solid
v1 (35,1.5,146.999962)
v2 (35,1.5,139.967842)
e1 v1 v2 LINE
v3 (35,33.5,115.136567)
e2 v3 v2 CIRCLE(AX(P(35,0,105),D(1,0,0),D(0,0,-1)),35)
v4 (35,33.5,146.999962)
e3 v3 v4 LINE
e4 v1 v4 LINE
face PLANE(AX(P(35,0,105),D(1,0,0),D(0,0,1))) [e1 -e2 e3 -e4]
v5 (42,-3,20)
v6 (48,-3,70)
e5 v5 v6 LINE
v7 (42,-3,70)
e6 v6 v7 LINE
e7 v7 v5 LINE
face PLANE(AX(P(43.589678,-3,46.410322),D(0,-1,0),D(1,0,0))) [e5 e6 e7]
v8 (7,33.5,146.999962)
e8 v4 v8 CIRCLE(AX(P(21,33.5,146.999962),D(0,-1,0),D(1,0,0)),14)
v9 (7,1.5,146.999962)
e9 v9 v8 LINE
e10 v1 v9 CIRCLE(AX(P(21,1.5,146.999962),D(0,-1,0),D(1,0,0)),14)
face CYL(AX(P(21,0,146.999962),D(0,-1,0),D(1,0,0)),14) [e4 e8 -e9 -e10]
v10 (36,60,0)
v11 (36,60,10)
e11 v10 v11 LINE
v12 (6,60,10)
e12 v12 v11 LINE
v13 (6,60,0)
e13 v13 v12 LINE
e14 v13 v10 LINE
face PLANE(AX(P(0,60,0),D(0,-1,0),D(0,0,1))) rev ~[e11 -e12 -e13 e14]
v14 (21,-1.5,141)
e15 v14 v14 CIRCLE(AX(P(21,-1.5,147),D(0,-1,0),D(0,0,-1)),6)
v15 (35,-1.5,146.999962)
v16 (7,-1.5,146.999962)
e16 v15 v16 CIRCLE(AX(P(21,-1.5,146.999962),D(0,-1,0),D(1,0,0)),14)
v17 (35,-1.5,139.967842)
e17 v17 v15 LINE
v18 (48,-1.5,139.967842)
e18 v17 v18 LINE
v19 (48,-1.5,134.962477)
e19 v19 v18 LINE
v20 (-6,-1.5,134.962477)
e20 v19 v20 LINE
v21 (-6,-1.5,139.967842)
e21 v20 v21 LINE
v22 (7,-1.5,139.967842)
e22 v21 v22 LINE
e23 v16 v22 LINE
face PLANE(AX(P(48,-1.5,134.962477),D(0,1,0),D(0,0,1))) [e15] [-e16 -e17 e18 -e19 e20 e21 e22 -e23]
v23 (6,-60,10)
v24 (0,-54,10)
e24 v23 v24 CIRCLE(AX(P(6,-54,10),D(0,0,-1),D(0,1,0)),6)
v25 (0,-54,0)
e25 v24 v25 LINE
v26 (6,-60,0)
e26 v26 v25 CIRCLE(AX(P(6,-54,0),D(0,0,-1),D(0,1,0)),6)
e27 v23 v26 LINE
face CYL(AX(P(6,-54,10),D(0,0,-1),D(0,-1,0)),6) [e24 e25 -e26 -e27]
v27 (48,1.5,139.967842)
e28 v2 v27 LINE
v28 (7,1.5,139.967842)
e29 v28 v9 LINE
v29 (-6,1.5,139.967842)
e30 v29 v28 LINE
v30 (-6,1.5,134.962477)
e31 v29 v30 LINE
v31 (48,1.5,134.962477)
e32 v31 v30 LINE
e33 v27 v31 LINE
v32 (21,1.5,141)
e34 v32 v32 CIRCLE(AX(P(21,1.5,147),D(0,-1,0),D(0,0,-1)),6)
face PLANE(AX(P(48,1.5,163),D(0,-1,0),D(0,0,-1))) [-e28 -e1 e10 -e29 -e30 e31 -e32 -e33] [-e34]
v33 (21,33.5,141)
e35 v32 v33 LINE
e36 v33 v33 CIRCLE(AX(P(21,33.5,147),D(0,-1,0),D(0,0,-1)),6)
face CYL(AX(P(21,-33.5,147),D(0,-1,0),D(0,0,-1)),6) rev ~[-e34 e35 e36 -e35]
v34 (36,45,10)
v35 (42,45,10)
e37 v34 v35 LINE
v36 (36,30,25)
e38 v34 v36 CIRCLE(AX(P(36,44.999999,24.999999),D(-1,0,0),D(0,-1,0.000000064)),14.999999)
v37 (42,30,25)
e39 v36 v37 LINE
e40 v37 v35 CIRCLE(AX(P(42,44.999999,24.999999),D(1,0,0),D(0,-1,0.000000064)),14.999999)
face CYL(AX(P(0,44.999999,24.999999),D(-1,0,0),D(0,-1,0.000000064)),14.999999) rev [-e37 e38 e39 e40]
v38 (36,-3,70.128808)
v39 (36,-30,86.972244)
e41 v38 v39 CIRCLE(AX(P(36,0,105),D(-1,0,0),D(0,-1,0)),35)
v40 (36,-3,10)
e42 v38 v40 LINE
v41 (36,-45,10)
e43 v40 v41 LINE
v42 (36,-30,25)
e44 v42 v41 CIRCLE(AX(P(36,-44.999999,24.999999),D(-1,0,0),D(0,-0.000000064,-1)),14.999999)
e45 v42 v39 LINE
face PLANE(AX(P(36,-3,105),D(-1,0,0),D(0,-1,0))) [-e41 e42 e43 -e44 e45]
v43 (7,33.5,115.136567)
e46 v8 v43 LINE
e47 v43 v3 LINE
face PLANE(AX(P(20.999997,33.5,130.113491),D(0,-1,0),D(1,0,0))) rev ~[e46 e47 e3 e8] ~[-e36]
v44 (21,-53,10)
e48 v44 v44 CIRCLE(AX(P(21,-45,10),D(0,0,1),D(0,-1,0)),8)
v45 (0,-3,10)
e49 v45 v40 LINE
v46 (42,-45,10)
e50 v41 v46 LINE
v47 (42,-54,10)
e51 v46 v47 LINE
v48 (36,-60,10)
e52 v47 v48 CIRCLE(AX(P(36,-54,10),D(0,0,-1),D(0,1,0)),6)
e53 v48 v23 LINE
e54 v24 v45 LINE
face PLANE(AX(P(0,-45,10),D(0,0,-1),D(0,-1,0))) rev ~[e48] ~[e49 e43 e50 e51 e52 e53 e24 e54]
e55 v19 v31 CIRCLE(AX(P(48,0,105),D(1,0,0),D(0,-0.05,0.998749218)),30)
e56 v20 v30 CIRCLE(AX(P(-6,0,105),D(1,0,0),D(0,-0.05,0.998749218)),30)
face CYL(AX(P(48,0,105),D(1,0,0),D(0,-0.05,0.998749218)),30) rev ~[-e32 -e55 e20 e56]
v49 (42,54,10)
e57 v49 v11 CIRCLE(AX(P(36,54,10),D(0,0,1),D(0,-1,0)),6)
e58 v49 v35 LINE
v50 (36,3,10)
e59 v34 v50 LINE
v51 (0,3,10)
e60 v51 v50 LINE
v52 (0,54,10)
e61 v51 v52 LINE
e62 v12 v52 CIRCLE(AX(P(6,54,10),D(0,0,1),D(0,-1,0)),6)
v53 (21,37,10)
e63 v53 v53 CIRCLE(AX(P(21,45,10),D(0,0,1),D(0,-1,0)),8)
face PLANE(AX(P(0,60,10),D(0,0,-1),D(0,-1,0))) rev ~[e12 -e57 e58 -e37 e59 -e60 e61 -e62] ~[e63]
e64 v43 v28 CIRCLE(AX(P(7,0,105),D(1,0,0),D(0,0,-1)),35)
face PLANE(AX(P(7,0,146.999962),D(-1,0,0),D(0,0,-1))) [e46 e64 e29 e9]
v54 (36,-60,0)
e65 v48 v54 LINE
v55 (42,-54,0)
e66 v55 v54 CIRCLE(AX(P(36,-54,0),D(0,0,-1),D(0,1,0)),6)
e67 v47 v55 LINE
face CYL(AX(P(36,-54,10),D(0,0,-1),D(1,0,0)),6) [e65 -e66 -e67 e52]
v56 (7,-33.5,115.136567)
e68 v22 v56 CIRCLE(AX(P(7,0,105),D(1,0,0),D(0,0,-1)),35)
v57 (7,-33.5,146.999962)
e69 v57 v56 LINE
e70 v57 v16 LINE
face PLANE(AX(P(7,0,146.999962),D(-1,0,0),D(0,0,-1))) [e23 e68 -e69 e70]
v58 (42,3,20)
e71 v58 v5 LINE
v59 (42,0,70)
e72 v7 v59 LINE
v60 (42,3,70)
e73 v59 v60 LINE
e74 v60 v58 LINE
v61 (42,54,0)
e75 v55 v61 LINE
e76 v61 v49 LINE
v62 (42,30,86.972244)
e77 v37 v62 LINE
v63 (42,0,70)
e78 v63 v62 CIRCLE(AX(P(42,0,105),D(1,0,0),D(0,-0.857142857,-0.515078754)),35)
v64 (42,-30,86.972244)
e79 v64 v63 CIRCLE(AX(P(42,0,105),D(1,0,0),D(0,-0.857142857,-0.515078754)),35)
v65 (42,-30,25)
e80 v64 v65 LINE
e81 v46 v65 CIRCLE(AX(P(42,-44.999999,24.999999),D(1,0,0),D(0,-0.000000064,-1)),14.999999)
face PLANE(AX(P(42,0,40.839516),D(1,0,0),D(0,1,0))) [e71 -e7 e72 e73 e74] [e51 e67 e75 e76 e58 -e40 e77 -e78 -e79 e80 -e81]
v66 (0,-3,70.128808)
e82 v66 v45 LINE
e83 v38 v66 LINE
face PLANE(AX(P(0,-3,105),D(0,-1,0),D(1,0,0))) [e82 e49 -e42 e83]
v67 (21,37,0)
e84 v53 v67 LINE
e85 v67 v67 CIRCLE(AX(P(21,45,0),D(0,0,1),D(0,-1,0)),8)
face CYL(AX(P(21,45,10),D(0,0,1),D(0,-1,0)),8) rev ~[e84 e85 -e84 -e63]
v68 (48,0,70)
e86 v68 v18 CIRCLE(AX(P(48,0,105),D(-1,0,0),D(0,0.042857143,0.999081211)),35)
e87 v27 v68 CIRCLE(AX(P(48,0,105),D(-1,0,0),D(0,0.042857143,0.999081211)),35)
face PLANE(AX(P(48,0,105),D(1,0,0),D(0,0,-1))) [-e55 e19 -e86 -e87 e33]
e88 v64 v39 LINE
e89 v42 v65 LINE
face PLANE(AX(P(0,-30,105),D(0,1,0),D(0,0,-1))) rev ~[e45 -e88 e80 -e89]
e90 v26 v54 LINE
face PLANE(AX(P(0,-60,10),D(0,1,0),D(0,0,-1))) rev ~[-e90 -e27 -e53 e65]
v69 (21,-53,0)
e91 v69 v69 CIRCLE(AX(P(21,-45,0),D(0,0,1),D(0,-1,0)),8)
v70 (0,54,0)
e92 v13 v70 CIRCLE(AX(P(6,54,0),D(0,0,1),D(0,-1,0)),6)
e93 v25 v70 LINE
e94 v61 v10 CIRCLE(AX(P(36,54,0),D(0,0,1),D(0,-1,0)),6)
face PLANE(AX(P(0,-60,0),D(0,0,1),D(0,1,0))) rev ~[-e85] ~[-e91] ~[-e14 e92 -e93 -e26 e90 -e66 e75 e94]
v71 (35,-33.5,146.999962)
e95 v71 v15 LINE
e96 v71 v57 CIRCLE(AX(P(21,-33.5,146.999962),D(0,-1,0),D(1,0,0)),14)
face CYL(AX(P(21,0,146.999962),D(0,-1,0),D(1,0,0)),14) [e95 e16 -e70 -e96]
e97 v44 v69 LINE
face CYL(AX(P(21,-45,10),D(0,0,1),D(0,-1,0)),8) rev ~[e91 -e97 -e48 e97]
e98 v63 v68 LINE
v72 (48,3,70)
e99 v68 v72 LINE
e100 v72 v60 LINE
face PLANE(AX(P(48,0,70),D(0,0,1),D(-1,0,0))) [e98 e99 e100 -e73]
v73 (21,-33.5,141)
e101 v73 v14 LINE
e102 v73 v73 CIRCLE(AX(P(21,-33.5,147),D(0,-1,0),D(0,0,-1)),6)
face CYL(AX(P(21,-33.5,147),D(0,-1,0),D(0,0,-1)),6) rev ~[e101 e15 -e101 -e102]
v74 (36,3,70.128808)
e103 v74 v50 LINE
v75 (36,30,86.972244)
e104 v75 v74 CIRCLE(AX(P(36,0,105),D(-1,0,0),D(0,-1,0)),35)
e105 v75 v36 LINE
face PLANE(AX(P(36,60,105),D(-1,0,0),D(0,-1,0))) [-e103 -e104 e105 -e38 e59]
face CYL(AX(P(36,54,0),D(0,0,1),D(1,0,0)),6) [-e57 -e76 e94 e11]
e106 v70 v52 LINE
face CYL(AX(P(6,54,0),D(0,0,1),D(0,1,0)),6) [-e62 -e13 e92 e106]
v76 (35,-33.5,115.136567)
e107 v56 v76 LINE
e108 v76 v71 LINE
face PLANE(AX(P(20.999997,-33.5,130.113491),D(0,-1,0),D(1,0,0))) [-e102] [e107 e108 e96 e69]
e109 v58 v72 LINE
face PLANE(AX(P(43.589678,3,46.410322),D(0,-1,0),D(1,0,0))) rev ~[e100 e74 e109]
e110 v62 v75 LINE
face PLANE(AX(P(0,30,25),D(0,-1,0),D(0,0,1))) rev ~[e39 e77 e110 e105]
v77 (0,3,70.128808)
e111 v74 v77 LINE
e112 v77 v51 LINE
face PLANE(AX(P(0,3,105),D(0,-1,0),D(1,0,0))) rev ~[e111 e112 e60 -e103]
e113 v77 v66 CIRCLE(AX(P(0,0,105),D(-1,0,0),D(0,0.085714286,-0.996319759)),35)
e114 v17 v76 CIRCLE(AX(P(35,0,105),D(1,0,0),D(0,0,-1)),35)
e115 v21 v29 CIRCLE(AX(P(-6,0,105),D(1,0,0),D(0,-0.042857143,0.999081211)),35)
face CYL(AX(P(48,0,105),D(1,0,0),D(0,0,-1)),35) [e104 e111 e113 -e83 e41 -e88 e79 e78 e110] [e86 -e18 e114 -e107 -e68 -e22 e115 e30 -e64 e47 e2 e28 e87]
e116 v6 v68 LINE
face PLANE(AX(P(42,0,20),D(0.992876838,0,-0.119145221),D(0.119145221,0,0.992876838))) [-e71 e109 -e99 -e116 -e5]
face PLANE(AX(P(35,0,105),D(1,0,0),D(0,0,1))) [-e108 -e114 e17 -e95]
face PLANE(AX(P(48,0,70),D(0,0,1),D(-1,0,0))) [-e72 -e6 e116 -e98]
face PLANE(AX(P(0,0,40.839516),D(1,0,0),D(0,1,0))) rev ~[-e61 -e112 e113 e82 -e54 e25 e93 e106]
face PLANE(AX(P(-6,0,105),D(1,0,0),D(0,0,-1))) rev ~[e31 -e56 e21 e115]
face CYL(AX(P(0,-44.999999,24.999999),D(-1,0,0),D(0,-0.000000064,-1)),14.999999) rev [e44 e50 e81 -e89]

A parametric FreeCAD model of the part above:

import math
import FreeCAD as App
import Part
import Sketcher

V = App.Vector


def edges_at(feature, points):
    """Names of the edges that pass closest to the given points."""
    edges = feature.Shape.Edges
    near = lambda p: min(range(len(edges)), key=lambda i: edges[i].distToShape(Part.Vertex(*p))[0])
    return sorted({f"Edge{near(p) + 1}" for p in points})


def add_polygon(sketch, points):
    """Adds a closed chain of lines whose ends are joined by coincident constraints."""
    first, n = sketch.GeometryCount, len(points)
    for a, b in zip(points, points[1:] + points[:1]):
        sketch.addGeometry(Part.LineSegment(App.Vector(*a, 0), App.Vector(*b, 0)), False)
    for i in range(n):
        sketch.addConstraint(Sketcher.Constraint("Coincident", first + i, 2, first + (i + 1) % n, 1))

doc = App.newDocument("Part")
body = doc.addObject("PartDesign::Body", "Body")

sketch1 = body.newObject("Sketcher::SketchObject", "Sketch")
sketch1.AttachmentSupport = (doc.getObject("YZ_Plane"), [""])
sketch1.MapMode = "FlatFace"
sketch1.addGeometry([
    Part.LineSegment(V(-60, 0, 0), V(60, 0, 0)),
    Part.LineSegment(V(60, 0, 0), V(60, 10, 0)),
    Part.LineSegment(V(60, 10, 0), V(45, 10, 0)),
    Part.ArcOfCircle(Part.Circle(V(45, 25, 0), V(0, 0, 1), 15), math.radians(180), math.radians(270)),
    Part.LineSegment(V(30, 25, 0), V(30, 105, 0)),
    Part.LineSegment(V(30, 105, 0), V(-30, 105, 0)),
    Part.LineSegment(V(-30, 105, 0), V(-30, 25, 0)),
    Part.ArcOfCircle(Part.Circle(V(-45, 25, 0), V(0, 0, 1), 15), math.radians(-90), math.radians(0)),
    Part.LineSegment(V(-45, 10, 0), V(-60, 10, 0)),
    Part.LineSegment(V(-60, 10, 0), V(-60, 0, 0)),
], False)
sketch1.addConstraint([
    Sketcher.Constraint("Coincident", 0, 2, 1, 1),
    Sketcher.Constraint("Coincident", 1, 2, 2, 1),
    Sketcher.Constraint("Tangent", 2, 2, 3, 2),
    Sketcher.Constraint("Tangent", 3, 1, 4, 1),
    Sketcher.Constraint("Coincident", 4, 2, 5, 1),
    Sketcher.Constraint("Coincident", 5, 2, 6, 1),
    Sketcher.Constraint("Tangent", 6, 2, 7, 2),
    Sketcher.Constraint("Tangent", 7, 1, 8, 1),
    Sketcher.Constraint("Coincident", 8, 2, 9, 1),
    Sketcher.Constraint("Coincident", 9, 2, 0, 1),
    Sketcher.Constraint("Horizontal", 0),
    Sketcher.Constraint("Vertical", 1),
    Sketcher.Constraint("Horizontal", 2),
    Sketcher.Constraint("Vertical", 4),
    Sketcher.Constraint("Horizontal", 5),
    Sketcher.Constraint("Vertical", 6),
    Sketcher.Constraint("Horizontal", 8),
    Sketcher.Constraint("Vertical", 9),
    Sketcher.Constraint("Equal", 3, 7),
    Sketcher.Constraint("Symmetric", 0, 2, 9, 2, -1, 1),
    Sketcher.Constraint("Symmetric", 3, 3, 7, 3, -2),
    Sketcher.Constraint("Radius", 3, 14.999999),
    Sketcher.Constraint("DistanceX", 0, 1, 0, 2, 120.0),
    Sketcher.Constraint("DistanceX", 2, 2, 2, 1, 15.0),
    Sketcher.Constraint("DistanceY", 1, 1, 1, 2, 10.0),
    Sketcher.Constraint("DistanceY", 4, 1, 4, 2, 80.0),
])
pad1 = body.newObject("PartDesign::Pad", "Pad")
pad1.Profile = sketch1
pad1.Length = 42

sketch2 = body.newObject("Sketcher::SketchObject", "Sketch001")
sketch2.AttachmentSupport = (doc.getObject("XY_Plane"), [""])
sketch2.MapMode = "FlatFace"
sketch2.AttachmentOffset = App.Placement(V(0, 0, 105), App.Rotation())
add_polygon(sketch2, [(36, 60), (0, 60), (0, 3), (36, 3)])
add_polygon(sketch2, [(36, -3), (0, -3), (0, -60), (36, -60)])
sketch2.addConstraint([
    Sketcher.Constraint("Horizontal", 0),
    Sketcher.Constraint("Vertical", 1),
    Sketcher.Constraint("Horizontal", 2),
    Sketcher.Constraint("Vertical", 3),
    Sketcher.Constraint("Horizontal", 4),
    Sketcher.Constraint("Vertical", 5),
    Sketcher.Constraint("Horizontal", 6),
    Sketcher.Constraint("Vertical", 7),
    Sketcher.Constraint("Symmetric", 1, 2, 4, 2, -1, 1),
    Sketcher.Constraint("Symmetric", 0, 2, 5, 2, -1),
    Sketcher.Constraint("Vertical", 3, 2, 6, 2),
    Sketcher.Constraint("DistanceX", 0, 2, 0, 1, 36.0),
    Sketcher.Constraint("DistanceY", 1, 2, 1, 1, 57.0),
    Sketcher.Constraint("DistanceY", -1, 1, 0, 2, 60.0),
])
pocket1 = body.newObject("PartDesign::Pocket", "Pocket")
pocket1.Profile = sketch2
pocket1.Length = 95
doc.recompute()

fillet = body.newObject("PartDesign::Fillet", "Fillet")
fillet.Base = (pocket1, edges_at(pocket1, [(42, -60, 5)]))
fillet.Radius = 6
doc.recompute()

fillet2 = body.newObject("PartDesign::Fillet", "Fillet001")
fillet2.Base = (fillet, edges_at(fillet, [(0, -60, 5)]))
fillet2.Radius = 6
doc.recompute()

fillet3 = body.newObject("PartDesign::Fillet", "Fillet002")
fillet3.Base = (fillet2, edges_at(fillet2, [(42, 60, 5)]))
fillet3.Radius = 6
doc.recompute()

fillet4 = body.newObject("PartDesign::Fillet", "Fillet003")
fillet4.Base = (fillet3, edges_at(fillet3, [(0, 60, 5)]))
fillet4.Radius = 6

sketch3 = body.newObject("Sketcher::SketchObject", "Sketch002")
sketch3.AttachmentSupport = (doc.getObject("XY_Plane"), [""])
sketch3.MapMode = "FlatFace"
sketch3.AttachmentOffset = App.Placement(V(0, 0, 10), App.Rotation())
sketch3.addGeometry([
    Part.Circle(V(21, 45, 0), V(0, 0, 1), 8),
    Part.Circle(V(21, -45, 0), V(0, 0, 1), 8),
], False)
sketch3.addConstraint([
    Sketcher.Constraint("Equal", 0, 1),
    Sketcher.Constraint("Symmetric", 0, 3, 1, 3, -1),
    Sketcher.Constraint("Diameter", 0, 16.0),
    Sketcher.Constraint("DistanceX", -1, 1, 0, 3, 21.0),
    Sketcher.Constraint("DistanceY", -1, 1, 0, 3, 45.0),
])
pocket2 = body.newObject("PartDesign::Pocket", "Pocket001")
pocket2.Profile = sketch3
pocket2.Type = "ThroughAll"

sketch4 = body.newObject("Sketcher::SketchObject", "Sketch003")
sketch4.AttachmentSupport = (doc.getObject("YZ_Plane"), [""])
sketch4.MapMode = "FlatFace"
sketch4.addGeometry([
    Part.ArcOfCircle(Part.Circle(V(0, 105, 0), V(0, 0, 1), 35), math.radians(180), math.radians(360)),
    Part.LineSegment(V(35, 105, 0), V(-35, 105, 0)),
], False)
sketch4.addConstraint([
    Sketcher.Constraint("Coincident", 0, 1, 1, 2),
    Sketcher.Constraint("Coincident", 1, 1, 0, 2),
    Sketcher.Constraint("Horizontal", 1),
    Sketcher.Constraint("PointOnObject", 0, 3, -2),
    Sketcher.Constraint("Radius", 0, 35.0),
    Sketcher.Constraint("DistanceY", -1, 1, 0, 3, 105.0),
    Sketcher.Constraint("DistanceY", -1, 1, 0, 1, 105.0),
])
pocket3 = body.newObject("PartDesign::Pocket", "Pocket002")
pocket3.Profile = sketch4
pocket3.Type = "ThroughAll"
pocket3.Reversed = True

sketch5 = body.newObject("Sketcher::SketchObject", "Sketch004")
sketch5.AttachmentSupport = (doc.getObject("YZ_Plane"), [""])
sketch5.MapMode = "FlatFace"
sketch5.AttachmentOffset = App.Placement(V(0, 0, 48), App.Rotation())
sketch5.addGeometry(Part.Circle(V(0, 105, 0), V(0, 0, 1), 35), False)
sketch5.addConstraint([
    Sketcher.Constraint("PointOnObject", 0, 3, -2),
    Sketcher.Constraint("Diameter", 0, 70.0),
    Sketcher.Constraint("DistanceY", -1, 1, 0, 3, 105.0),
])
pad2 = body.newObject("PartDesign::Pad", "Pad001")
pad2.Profile = sketch5
pad2.Length = 54
pad2.Reversed = True

sketch6 = body.newObject("Sketcher::SketchObject", "Sketch005")
sketch6.AttachmentSupport = (doc.getObject("XZ_Plane"), [""])
sketch6.MapMode = "FlatFace"
sketch6.addGeometry([
    Part.LineSegment(V(7, 146.999962, 0), V(7, 104.999962, 0)),
    Part.LineSegment(V(7, 104.999962, 0), V(35, 105, 0)),
    Part.LineSegment(V(35, 105, 0), V(35, 146.999962, 0)),
    Part.ArcOfCircle(Part.Circle(V(21, 146.999962, 0), V(0, 0, 1), 14), math.radians(0), math.radians(180)),
], False)
sketch6.addConstraint([
    Sketcher.Constraint("Coincident", 0, 2, 1, 1),
    Sketcher.Constraint("Coincident", 1, 2, 2, 1),
    Sketcher.Constraint("Tangent", 2, 2, 3, 1),
    Sketcher.Constraint("Tangent", 3, 2, 0, 1),
    Sketcher.Constraint("Vertical", 0),
    Sketcher.Constraint("Vertical", 2),
    Sketcher.Constraint("Radius", 3, 14.0),
    Sketcher.Constraint("DistanceY", 0, 2, 0, 1, 42.0),
    Sketcher.Constraint("DistanceX", -1, 1, 3, 3, 21.0),
    Sketcher.Constraint("DistanceY", -1, 1, 1, 2, 105.0),
    Sketcher.Constraint("DistanceY", 2, 1, 2, 2, 41.999962),
])
pad3 = body.newObject("PartDesign::Pad", "Pad002")
pad3.Profile = sketch6
pad3.Length = 67
pad3.Midplane = True

sketch7 = body.newObject("Sketcher::SketchObject", "Sketch006")
sketch7.AttachmentSupport = (doc.getObject("YZ_Plane"), [""])
sketch7.MapMode = "FlatFace"
sketch7.AttachmentOffset = App.Placement(V(0, 0, 48), App.Rotation())
sketch7.addGeometry([
    Part.ArcOfCircle(Part.Circle(V(0, 105, 0), V(0, 0, 1), 30), math.radians(93), math.radians(447)),
    Part.LineSegment(V(1.5, 135, 0), V(1.5, 163, 0)),
    Part.LineSegment(V(1.5, 163, 0), V(-1.5, 163, 0)),
    Part.LineSegment(V(-1.5, 163, 0), V(-1.5, 135, 0)),
], False)
sketch7.addConstraint([
    Sketcher.Constraint("Coincident", 0, 2, 1, 1),
    Sketcher.Constraint("Coincident", 1, 2, 2, 1),
    Sketcher.Constraint("Coincident", 2, 2, 3, 1),
    Sketcher.Constraint("Coincident", 3, 2, 0, 1),
    Sketcher.Constraint("Vertical", 1),
    Sketcher.Constraint("Horizontal", 2),
    Sketcher.Constraint("Vertical", 3),
    Sketcher.Constraint("Symmetric", 0, 2, 3, 2, -2),
    Sketcher.Constraint("Radius", 0, 30.0),
    Sketcher.Constraint("DistanceX", 2, 2, 2, 1, 3.0),
    Sketcher.Constraint("DistanceY", -1, 1, 0, 3, 105.0),
    Sketcher.Constraint("DistanceY", -1, 1, 1, 2, 163.0),
])
pocket4 = body.newObject("PartDesign::Pocket", "Pocket003")
pocket4.Profile = sketch7
pocket4.Type = "ThroughAll"

sketch8 = body.newObject("Sketcher::SketchObject", "Sketch007")
sketch8.AttachmentSupport = (doc.getObject("XZ_Plane"), [""])
sketch8.MapMode = "FlatFace"
sketch8.AttachmentOffset = App.Placement(V(0, 0, 33.5), App.Rotation())
sketch8.addGeometry(Part.Circle(V(21, 147, 0), V(0, 0, 1), 6), False)
sketch8.addConstraint([
    Sketcher.Constraint("Diameter", 0, 12.0),
    Sketcher.Constraint("DistanceX", -1, 1, 0, 3, 21.0),
    Sketcher.Constraint("DistanceY", -1, 1, 0, 3, 147.0),
])
pocket5 = body.newObject("PartDesign::Pocket", "Pocket004")
pocket5.Profile = sketch8
pocket5.Type = "ThroughAll"

sketch9 = body.newObject("Sketcher::SketchObject", "Sketch008")
sketch9.AttachmentSupport = (doc.getObject("XZ_Plane"), [""])
sketch9.MapMode = "FlatFace"
add_polygon(sketch9, [(42, 70), (42, 20), (48, 70)])
sketch9.addConstraint([
    Sketcher.Constraint("Vertical", 0),
    Sketcher.Constraint("Horizontal", 2),
    Sketcher.Constraint("DistanceX", 2, 2, 2, 1, 6.0),
    Sketcher.Constraint("DistanceY", 0, 2, 0, 1, 50.0),
    Sketcher.Constraint("DistanceX", -1, 1, 0, 2, 42.0),
    Sketcher.Constraint("DistanceY", -1, 1, 0, 2, 20.0),
])
pad4 = body.newObject("PartDesign::Pad", "Pad003")
pad4.Profile = sketch9
pad4.Length = 6
pad4.Midplane = True

doc.recompute()
